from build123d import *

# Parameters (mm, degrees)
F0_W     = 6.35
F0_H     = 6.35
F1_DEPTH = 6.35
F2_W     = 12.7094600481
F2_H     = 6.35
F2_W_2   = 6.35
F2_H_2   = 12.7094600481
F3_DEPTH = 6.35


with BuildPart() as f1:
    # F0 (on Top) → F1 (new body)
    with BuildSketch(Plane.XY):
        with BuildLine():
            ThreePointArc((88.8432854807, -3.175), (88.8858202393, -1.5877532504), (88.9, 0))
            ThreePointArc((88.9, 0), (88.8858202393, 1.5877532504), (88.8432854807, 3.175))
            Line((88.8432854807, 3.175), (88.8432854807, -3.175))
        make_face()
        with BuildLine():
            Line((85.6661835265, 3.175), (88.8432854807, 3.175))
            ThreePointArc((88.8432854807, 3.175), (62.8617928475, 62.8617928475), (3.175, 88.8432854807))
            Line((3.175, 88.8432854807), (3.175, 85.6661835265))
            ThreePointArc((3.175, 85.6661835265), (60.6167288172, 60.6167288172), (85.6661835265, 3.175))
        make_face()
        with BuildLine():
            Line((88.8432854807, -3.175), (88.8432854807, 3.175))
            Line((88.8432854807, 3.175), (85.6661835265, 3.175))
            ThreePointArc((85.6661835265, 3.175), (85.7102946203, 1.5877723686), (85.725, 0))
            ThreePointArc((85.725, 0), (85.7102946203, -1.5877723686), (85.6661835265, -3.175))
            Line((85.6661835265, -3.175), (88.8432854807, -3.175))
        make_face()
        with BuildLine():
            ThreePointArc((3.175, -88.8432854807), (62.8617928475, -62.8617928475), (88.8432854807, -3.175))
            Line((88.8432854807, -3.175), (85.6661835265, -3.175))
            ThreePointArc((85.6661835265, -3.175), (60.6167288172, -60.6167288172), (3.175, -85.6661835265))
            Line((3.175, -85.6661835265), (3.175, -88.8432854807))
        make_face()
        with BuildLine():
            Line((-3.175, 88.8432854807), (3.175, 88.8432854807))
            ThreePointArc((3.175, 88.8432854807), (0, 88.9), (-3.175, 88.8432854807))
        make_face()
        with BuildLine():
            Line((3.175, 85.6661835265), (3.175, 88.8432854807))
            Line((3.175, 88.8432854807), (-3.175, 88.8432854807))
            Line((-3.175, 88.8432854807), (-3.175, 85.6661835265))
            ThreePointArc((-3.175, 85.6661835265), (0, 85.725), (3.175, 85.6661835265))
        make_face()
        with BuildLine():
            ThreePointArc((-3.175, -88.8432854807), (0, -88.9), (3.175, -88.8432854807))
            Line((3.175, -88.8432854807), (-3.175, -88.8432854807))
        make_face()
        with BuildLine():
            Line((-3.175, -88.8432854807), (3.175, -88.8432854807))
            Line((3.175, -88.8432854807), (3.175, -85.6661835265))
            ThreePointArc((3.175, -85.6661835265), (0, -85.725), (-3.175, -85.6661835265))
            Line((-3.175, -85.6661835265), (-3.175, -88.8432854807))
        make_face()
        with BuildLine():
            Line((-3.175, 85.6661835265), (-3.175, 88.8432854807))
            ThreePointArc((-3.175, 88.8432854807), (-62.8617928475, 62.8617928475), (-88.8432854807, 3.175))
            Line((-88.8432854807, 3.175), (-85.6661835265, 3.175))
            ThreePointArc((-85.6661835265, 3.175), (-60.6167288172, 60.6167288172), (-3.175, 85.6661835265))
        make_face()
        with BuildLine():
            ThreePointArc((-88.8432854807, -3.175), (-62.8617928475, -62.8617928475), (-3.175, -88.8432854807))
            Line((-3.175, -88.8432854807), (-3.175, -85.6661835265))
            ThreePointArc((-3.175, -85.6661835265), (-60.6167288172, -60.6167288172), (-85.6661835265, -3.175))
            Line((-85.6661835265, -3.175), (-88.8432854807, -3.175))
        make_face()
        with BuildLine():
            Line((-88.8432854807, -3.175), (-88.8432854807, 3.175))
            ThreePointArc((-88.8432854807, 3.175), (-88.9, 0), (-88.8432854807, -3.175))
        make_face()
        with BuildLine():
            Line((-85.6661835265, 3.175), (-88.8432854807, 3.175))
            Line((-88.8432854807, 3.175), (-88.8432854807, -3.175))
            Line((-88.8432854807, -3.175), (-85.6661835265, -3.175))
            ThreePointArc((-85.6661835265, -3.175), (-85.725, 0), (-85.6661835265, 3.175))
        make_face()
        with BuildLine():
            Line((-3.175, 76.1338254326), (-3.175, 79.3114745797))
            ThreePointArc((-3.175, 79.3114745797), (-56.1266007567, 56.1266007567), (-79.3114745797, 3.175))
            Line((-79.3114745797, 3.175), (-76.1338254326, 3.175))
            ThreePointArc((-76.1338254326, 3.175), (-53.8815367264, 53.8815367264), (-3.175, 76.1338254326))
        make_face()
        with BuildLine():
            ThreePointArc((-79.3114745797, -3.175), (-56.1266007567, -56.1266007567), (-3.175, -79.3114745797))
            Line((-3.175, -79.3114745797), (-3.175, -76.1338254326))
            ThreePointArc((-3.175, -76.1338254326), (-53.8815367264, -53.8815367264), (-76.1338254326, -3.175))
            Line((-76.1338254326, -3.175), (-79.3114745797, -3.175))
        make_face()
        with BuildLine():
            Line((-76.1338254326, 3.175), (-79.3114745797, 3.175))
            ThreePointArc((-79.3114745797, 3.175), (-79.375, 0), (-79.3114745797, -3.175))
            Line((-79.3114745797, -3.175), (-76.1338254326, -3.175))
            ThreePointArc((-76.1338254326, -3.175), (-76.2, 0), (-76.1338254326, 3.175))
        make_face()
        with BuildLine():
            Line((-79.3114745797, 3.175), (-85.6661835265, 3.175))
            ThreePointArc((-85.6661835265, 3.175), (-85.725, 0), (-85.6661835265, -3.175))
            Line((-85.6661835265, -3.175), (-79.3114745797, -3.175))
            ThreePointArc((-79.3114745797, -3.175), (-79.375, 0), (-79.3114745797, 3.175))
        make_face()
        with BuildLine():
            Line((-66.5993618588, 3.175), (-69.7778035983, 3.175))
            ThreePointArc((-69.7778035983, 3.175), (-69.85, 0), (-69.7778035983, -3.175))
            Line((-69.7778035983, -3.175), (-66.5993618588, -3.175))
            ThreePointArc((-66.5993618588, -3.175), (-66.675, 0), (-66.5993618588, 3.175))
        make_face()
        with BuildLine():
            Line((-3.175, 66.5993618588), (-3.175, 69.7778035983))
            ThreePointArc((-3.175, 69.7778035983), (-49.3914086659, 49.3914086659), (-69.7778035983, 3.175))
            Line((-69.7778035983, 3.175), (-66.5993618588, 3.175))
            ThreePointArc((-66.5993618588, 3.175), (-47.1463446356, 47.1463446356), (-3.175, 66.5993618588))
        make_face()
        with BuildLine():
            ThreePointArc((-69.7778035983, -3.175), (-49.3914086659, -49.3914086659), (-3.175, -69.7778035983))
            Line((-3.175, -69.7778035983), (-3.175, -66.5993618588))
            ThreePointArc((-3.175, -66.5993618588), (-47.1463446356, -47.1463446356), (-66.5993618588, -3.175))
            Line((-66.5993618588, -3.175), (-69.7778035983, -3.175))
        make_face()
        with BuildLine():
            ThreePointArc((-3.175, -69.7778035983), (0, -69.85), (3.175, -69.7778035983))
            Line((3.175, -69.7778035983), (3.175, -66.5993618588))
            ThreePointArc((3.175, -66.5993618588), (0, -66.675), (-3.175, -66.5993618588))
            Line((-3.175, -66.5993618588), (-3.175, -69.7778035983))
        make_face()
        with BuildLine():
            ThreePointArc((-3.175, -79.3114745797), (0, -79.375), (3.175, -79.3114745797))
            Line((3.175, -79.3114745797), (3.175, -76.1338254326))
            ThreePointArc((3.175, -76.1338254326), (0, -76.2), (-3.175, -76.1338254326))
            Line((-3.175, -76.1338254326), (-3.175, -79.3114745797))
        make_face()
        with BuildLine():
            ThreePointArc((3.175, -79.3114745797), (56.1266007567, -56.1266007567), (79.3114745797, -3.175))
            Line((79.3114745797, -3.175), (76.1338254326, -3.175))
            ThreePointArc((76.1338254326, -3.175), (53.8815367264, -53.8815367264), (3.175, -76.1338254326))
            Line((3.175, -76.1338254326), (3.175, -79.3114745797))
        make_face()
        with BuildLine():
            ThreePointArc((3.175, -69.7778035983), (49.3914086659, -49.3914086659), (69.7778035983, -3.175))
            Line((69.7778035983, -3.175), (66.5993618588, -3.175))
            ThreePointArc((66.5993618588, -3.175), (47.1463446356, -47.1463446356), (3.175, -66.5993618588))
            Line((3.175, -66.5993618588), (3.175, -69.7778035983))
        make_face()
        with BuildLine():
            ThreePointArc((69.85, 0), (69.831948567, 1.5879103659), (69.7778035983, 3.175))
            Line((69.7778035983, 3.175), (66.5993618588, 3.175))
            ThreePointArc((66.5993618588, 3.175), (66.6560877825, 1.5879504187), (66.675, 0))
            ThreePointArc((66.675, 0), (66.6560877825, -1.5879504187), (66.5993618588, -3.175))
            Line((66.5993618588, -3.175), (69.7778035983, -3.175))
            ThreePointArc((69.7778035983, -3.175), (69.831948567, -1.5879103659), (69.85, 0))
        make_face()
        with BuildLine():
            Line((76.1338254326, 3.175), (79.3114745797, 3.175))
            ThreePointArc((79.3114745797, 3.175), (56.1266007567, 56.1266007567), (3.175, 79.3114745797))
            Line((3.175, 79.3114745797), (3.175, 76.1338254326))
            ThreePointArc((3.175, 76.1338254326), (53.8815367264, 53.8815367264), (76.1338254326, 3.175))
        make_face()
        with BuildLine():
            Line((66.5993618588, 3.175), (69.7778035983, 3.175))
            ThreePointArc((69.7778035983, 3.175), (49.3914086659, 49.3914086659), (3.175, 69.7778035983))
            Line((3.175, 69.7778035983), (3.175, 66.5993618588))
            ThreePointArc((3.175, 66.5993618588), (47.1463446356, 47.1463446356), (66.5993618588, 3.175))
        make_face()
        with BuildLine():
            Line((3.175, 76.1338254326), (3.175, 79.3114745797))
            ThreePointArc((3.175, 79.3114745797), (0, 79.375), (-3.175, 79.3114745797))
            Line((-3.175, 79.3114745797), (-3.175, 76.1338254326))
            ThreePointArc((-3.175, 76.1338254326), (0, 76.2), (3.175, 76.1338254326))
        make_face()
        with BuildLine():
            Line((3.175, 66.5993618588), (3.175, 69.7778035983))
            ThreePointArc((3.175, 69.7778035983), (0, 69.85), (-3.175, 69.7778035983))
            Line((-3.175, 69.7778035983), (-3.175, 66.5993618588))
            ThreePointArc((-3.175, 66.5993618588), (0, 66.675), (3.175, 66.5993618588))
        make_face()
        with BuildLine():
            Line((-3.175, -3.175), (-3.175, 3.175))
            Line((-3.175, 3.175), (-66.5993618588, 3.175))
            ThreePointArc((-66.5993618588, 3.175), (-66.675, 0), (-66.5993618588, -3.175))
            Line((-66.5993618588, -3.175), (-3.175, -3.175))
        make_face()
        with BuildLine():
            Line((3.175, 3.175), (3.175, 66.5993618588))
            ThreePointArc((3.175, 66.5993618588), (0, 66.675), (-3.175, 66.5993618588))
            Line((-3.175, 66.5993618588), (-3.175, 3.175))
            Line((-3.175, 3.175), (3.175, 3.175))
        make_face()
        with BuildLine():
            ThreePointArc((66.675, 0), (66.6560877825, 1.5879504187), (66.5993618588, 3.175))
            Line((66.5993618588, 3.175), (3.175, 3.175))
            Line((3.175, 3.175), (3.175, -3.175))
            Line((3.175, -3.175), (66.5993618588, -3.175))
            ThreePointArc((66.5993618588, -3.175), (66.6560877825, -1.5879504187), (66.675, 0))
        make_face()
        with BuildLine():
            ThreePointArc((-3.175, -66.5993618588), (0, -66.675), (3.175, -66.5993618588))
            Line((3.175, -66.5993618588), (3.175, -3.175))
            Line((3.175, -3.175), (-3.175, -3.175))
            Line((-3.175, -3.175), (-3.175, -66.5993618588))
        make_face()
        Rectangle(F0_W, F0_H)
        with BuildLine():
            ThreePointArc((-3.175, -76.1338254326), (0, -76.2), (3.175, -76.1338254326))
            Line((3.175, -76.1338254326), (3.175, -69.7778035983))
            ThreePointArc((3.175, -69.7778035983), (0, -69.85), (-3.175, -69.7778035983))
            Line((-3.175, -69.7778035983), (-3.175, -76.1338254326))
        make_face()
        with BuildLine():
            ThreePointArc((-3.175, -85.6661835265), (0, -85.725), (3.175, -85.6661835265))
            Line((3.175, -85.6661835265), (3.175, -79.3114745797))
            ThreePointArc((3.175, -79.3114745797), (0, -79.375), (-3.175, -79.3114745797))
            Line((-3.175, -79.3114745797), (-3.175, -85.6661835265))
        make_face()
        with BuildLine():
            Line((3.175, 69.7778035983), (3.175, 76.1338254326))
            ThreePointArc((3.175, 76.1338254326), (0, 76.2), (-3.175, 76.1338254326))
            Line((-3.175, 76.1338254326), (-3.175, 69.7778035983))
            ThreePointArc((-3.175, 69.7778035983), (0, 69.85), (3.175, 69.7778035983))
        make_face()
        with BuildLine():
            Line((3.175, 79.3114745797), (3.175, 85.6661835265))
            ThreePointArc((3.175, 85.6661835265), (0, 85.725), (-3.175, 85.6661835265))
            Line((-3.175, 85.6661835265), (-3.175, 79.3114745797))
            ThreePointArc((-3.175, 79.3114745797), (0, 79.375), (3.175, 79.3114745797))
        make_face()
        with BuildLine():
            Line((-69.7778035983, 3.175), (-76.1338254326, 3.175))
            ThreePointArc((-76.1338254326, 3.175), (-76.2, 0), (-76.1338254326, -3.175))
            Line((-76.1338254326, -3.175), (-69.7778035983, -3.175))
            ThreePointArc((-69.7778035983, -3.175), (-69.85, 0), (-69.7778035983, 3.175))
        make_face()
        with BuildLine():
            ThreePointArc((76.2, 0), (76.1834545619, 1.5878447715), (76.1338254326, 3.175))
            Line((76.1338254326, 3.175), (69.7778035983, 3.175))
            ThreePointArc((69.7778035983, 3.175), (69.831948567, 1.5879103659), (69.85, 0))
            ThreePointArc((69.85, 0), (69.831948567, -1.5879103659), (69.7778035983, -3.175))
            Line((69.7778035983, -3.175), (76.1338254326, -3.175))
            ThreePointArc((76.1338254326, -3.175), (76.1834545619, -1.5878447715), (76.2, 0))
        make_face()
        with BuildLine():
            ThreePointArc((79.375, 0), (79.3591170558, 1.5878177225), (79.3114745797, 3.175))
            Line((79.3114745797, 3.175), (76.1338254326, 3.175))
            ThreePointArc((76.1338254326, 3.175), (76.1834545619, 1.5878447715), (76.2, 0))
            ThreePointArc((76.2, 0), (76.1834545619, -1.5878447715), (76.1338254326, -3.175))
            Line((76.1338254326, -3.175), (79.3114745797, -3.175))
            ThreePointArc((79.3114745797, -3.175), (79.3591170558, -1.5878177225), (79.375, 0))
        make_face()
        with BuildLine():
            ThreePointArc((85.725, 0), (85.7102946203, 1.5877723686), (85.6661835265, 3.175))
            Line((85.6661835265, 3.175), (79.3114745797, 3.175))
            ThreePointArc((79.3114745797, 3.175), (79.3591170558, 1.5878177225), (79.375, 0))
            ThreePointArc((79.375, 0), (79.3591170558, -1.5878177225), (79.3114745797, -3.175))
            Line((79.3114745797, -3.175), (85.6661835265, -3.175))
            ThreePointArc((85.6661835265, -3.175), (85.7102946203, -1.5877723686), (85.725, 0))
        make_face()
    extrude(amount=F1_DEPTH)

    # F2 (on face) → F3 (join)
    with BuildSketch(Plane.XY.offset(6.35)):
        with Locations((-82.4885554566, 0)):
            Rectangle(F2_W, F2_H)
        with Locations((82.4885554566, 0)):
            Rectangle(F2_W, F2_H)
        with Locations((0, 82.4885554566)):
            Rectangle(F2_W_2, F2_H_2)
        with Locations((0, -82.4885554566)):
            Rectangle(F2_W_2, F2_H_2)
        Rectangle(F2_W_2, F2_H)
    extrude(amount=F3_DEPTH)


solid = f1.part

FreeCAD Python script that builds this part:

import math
import FreeCAD as App
import Part
import Sketcher
Q = App.Units.Quantity

doc = App.newDocument("Part")
body = doc.addObject("PartDesign::Body", "Body")

sketch1 = body.newObject("Sketcher::SketchObject", "Sketch")
sketch1.AttachmentSupport = (doc.getObject("XY_Plane"), [""])
sketch1.MapMode = "FlatFace"
sketch1.addGeometry(Part.ArcOfCircle(Part.Circle(App.Vector(0, 0, 0), App.Vector(0, 0, 1), 88.9), math.radians(-2.05), math.radians(0)), False)
sketch1.addGeometry(Part.ArcOfCircle(Part.Circle(App.Vector(0, 0, 0), App.Vector(0, 0, 1), 88.9), math.radians(0), math.radians(2.05)), False)
sketch1.addGeometry(Part.ArcOfCircle(Part.Circle(App.Vector(0, 0, 0), App.Vector(0, 0, 1), 88.9), math.radians(2), math.radians(88)), False)
sketch1.addGeometry(Part.ArcOfCircle(Part.Circle(App.Vector(0, 0, 0), App.Vector(0, 0, 1), 88.9), math.radians(87.95), math.radians(92.05)), False)
sketch1.addGeometry(Part.ArcOfCircle(Part.Circle(App.Vector(0, 0, 0), App.Vector(0, 0, 1), 88.9), math.radians(92), math.radians(178)), False)
sketch1.addGeometry(Part.ArcOfCircle(Part.Circle(App.Vector(0, 0, 0), App.Vector(0, 0, 1), 88.9), math.radians(177.95), math.radians(182.05)), False)
sketch1.addGeometry(Part.ArcOfCircle(Part.Circle(App.Vector(0, 0, 0), App.Vector(0, 0, 1), 88.9), math.radians(-178), math.radians(-92)), False)
sketch1.addGeometry(Part.ArcOfCircle(Part.Circle(App.Vector(0, 0, 0), App.Vector(0, 0, 1), 88.9), math.radians(-92.05), math.radians(-87.95)), False)
sketch1.addGeometry(Part.ArcOfCircle(Part.Circle(App.Vector(0, 0, 0), App.Vector(0, 0, 1), 88.9), math.radians(-88), math.radians(-2)), False)
sketch1.addGeometry(Part.ArcOfCircle(Part.Circle(App.Vector(0, 0, 0), App.Vector(0, 0, 1), 85.7), math.radians(-178), math.radians(-92)), False)
sketch1.addGeometry(Part.LineSegment(App.Vector(-85.7, -3.2, 0), App.Vector(-79.3, -3.2, 0)), False)
sketch1.addGeometry(Part.ArcOfCircle(Part.Circle(App.Vector(0, 0, 0), App.Vector(0, 0, 1), 79.4), math.radians(-178), math.radians(-92)), False)
sketch1.addGeometry(Part.LineSegment(App.Vector(-3.2, -79.3, 0), App.Vector(-3.2, -85.7, 0)), False)
sketch1.addGeometry(Part.ArcOfCircle(Part.Circle(App.Vector(0, 0, 0), App.Vector(0, 0, 1), 69.8), math.radians(-177), math.radians(-93)), False)
sketch1.addGeometry(Part.LineSegment(App.Vector(-3.2, -69.8, 0), App.Vector(-3.2, -76.1, 0)), False)
sketch1.addGeometry(Part.ArcOfCircle(Part.Circle(App.Vector(0, 0, 0), App.Vector(0, 0, 1), 76.2), math.radians(-178), math.radians(-92)), False)
sketch1.addGeometry(Part.LineSegment(App.Vector(-76.1, -3.2, 0), App.Vector(-69.8, -3.2, 0)), False)
sketch1.addGeometry(Part.LineSegment(App.Vector(-66.6, -3.2, 0), App.Vector(-3.2, -3.2, 0)), False)
sketch1.addGeometry(Part.LineSegment(App.Vector(-3.2, -3.2, 0), App.Vector(-3.2, -66.6, 0)), False)
sketch1.addGeometry(Part.ArcOfCircle(Part.Circle(App.Vector(0, 0, 0), App.Vector(0, 0, 1), 66.7), math.radians(-177), math.radians(-93)), False)
sketch1.addGeometry(Part.LineSegment(App.Vector(69.8, -3.2, 0), App.Vector(76.1, -3.2, 0)), False)
sketch1.addGeometry(Part.ArcOfCircle(Part.Circle(App.Vector(0, 0, 0), App.Vector(0, 0, 1), 76.2), math.radians(-88), math.radians(-2)), False)
sketch1.addGeometry(Part.LineSegment(App.Vector(3.2, -76.1, 0), App.Vector(3.2, -69.8, 0)), False)
sketch1.addGeometry(Part.ArcOfCircle(Part.Circle(App.Vector(0, 0, 0), App.Vector(0, 0, 1), 69.8), math.radians(-87), math.radians(-3)), False)
sketch1.addGeometry(Part.LineSegment(App.Vector(3.2, -66.6, 0), App.Vector(3.2, -3.2, 0)), False)
sketch1.addGeometry(Part.LineSegment(App.Vector(3.2, -3.2, 0), App.Vector(66.6, -3.2, 0)), False)
sketch1.addGeometry(Part.ArcOfCircle(Part.Circle(App.Vector(0, 0, 0), App.Vector(0, 0, 1), 66.7), math.radians(-87), math.radians(-3)), False)
sketch1.addGeometry(Part.LineSegment(App.Vector(-3.2, 66.6, 0), App.Vector(-3.2, 3.2, 0)), False)
sketch1.addGeometry(Part.LineSegment(App.Vector(-3.2, 3.2, 0), App.Vector(-66.6, 3.2, 0)), False)
sketch1.addGeometry(Part.ArcOfCircle(Part.Circle(App.Vector(0, 0, 0), App.Vector(0, 0, 1), 66.7), math.radians(93), math.radians(177)), False)
sketch1.addGeometry(Part.ArcOfCircle(Part.Circle(App.Vector(0, 0, 0), App.Vector(0, 0, 1), 69.8), math.radians(93), math.radians(177)), False)
sketch1.addGeometry(Part.LineSegment(App.Vector(-69.8, 3.2, 0), App.Vector(-76.1, 3.2, 0)), False)
sketch1.addGeometry(Part.ArcOfCircle(Part.Circle(App.Vector(0, 0, 0), App.Vector(0, 0, 1), 76.2), math.radians(92), math.radians(178)), False)
sketch1.addGeometry(Part.LineSegment(App.Vector(-3.2, 76.1, 0), App.Vector(-3.2, 69.8, 0)), False)
sketch1.addGeometry(Part.ArcOfCircle(Part.Circle(App.Vector(0, 0, 0), App.Vector(0, 0, 1), 85.7), math.radians(92), math.radians(178)), False)
sketch1.addGeometry(Part.LineSegment(App.Vector(-3.2, 85.7, 0), App.Vector(-3.2, 79.3, 0)), False)
sketch1.addGeometry(Part.ArcOfCircle(Part.Circle(App.Vector(0, 0, 0), App.Vector(0, 0, 1), 79.4), math.radians(92), math.radians(178)), False)
sketch1.addGeometry(Part.LineSegment(App.Vector(-79.3, 3.2, 0), App.Vector(-85.7, 3.2, 0)), False)
sketch1.addGeometry(Part.ArcOfCircle(Part.Circle(App.Vector(0, 0, 0), App.Vector(0, 0, 1), 66.7), math.radians(3), math.radians(87)), False)
sketch1.addGeometry(Part.LineSegment(App.Vector(66.6, 3.2, 0), App.Vector(3.2, 3.2, 0)), False)
sketch1.addGeometry(Part.LineSegment(App.Vector(3.2, 3.2, 0), App.Vector(3.2, 66.6, 0)), False)
sketch1.addGeometry(Part.ArcOfCircle(Part.Circle(App.Vector(0, 0, 0), App.Vector(0, 0, 1), 76.2), math.radians(2), math.radians(88)), False)
sketch1.addGeometry(Part.LineSegment(App.Vector(76.1, 3.2, 0), App.Vector(69.8, 3.2, 0)), False)
sketch1.addGeometry(Part.ArcOfCircle(Part.Circle(App.Vector(0, 0, 0), App.Vector(0, 0, 1), 69.8), math.radians(3), math.radians(87)), False)
sketch1.addGeometry(Part.LineSegment(App.Vector(3.2, 69.8, 0), App.Vector(3.2, 76.1, 0)), False)
sketch1.addGeometry(Part.ArcOfCircle(Part.Circle(App.Vector(0, 0, 0), App.Vector(0, 0, 1), 79.4), math.radians(-88), math.radians(-2)), False)
sketch1.addGeometry(Part.LineSegment(App.Vector(79.3, -3.2, 0), App.Vector(85.7, -3.2, 0)), False)
sketch1.addGeometry(Part.ArcOfCircle(Part.Circle(App.Vector(0, 0, 0), App.Vector(0, 0, 1), 85.7), math.radians(-88), math.radians(-2)), False)
sketch1.addGeometry(Part.LineSegment(App.Vector(3.2, -85.7, 0), App.Vector(3.2, -79.3, 0)), False)
sketch1.addGeometry(Part.ArcOfCircle(Part.Circle(App.Vector(0, 0, 0), App.Vector(0, 0, 1), 79.4), math.radians(2), math.radians(88)), False)
sketch1.addGeometry(Part.LineSegment(App.Vector(3.2, 79.3, 0), App.Vector(3.2, 85.7, 0)), False)
sketch1.addGeometry(Part.ArcOfCircle(Part.Circle(App.Vector(0, 0, 0), App.Vector(0, 0, 1), 85.7), math.radians(2), math.radians(88)), False)
sketch1.addGeometry(Part.LineSegment(App.Vector(85.7, 3.2, 0), App.Vector(79.3, 3.2, 0)), False)
sketch1.addConstraint(Sketcher.Constraint("Tangent", 0, 2, 1, 1))
sketch1.addConstraint(Sketcher.Constraint("Tangent", 1, 2, 2, 1))
sketch1.addConstraint(Sketcher.Constraint("Tangent", 2, 2, 3, 1))
sketch1.addConstraint(Sketcher.Constraint("Tangent", 3, 2, 4, 1))
sketch1.addConstraint(Sketcher.Constraint("Tangent", 4, 2, 5, 1))
sketch1.addConstraint(Sketcher.Constraint("Tangent", 5, 2, 6, 1))
sketch1.addConstraint(Sketcher.Constraint("Tangent", 6, 2, 7, 1))
sketch1.addConstraint(Sketcher.Constraint("Tangent", 7, 2, 8, 1))
sketch1.addConstraint(Sketcher.Constraint("Tangent", 8, 2, 0, 1))
sketch1.addConstraint(Sketcher.Constraint("Coincident", 9, 1, 10, 1))
sketch1.addConstraint(Sketcher.Constraint("Coincident", 10, 2, 11, 1))
sketch1.addConstraint(Sketcher.Constraint("Coincident", 11, 2, 12, 1))
sketch1.addConstraint(Sketcher.Constraint("Coincident", 12, 2, 9, 2))
sketch1.addConstraint(Sketcher.Constraint("Coincident", 13, 2, 14, 1))
sketch1.addConstraint(Sketcher.Constraint("Coincident", 14, 2, 15, 2))
sketch1.addConstraint(Sketcher.Constraint("Coincident", 15, 1, 16, 1))
sketch1.addConstraint(Sketcher.Constraint("Coincident", 16, 2, 13, 1))
sketch1.addConstraint(Sketcher.Constraint("Coincident", 17, 2, 18, 1))
sketch1.addConstraint(Sketcher.Constraint("Coincident", 18, 2, 19, 2))
sketch1.addConstraint(Sketcher.Constraint("Coincident", 19, 1, 17, 1))
sketch1.addConstraint(Sketcher.Constraint("Coincident", 20, 2, 21, 2))
sketch1.addConstraint(Sketcher.Constraint("Coincident", 21, 1, 22, 1))
sketch1.addConstraint(Sketcher.Constraint("Coincident", 22, 2, 23, 1))
sketch1.addConstraint(Sketcher.Constraint("Coincident", 23, 2, 20, 1))
sketch1.addConstraint(Sketcher.Constraint("Coincident", 24, 2, 25, 1))
sketch1.addConstraint(Sketcher.Constraint("Coincident", 25, 2, 26, 2))
sketch1.addConstraint(Sketcher.Constraint("Coincident", 26, 1, 24, 1))
sketch1.addConstraint(Sketcher.Constraint("Coincident", 27, 2, 28, 1))
sketch1.addConstraint(Sketcher.Constraint("Coincident", 28, 2, 29, 2))
sketch1.addConstraint(Sketcher.Constraint("Coincident", 29, 1, 27, 1))
sketch1.addConstraint(Sketcher.Constraint("Coincident", 30, 2, 31, 1))
sketch1.addConstraint(Sketcher.Constraint("Coincident", 31, 2, 32, 2))
sketch1.addConstraint(Sketcher.Constraint("Coincident", 32, 1, 33, 1))
sketch1.addConstraint(Sketcher.Constraint("Coincident", 33, 2, 30, 1))
sketch1.addConstraint(Sketcher.Constraint("Coincident", 34, 1, 35, 1))
sketch1.addConstraint(Sketcher.Constraint("Coincident", 35, 2, 36, 1))
sketch1.addConstraint(Sketcher.Constraint("Coincident", 36, 2, 37, 1))
sketch1.addConstraint(Sketcher.Constraint("Coincident", 37, 2, 34, 2))
sketch1.addConstraint(Sketcher.Constraint("Coincident", 38, 1, 39, 1))
sketch1.addConstraint(Sketcher.Constraint("Coincident", 39, 2, 40, 1))
sketch1.addConstraint(Sketcher.Constraint("Coincident", 40, 2, 38, 2))
sketch1.addConstraint(Sketcher.Constraint("Coincident", 41, 1, 42, 1))
sketch1.addConstraint(Sketcher.Constraint("Coincident", 42, 2, 43, 1))
sketch1.addConstraint(Sketcher.Constraint("Coincident", 43, 2, 44, 1))
sketch1.addConstraint(Sketcher.Constraint("Coincident", 44, 2, 41, 2))
sketch1.addConstraint(Sketcher.Constraint("Coincident", 45, 2, 46, 1))
sketch1.addConstraint(Sketcher.Constraint("Coincident", 46, 2, 47, 2))
sketch1.addConstraint(Sketcher.Constraint("Coincident", 47, 1, 48, 1))
sketch1.addConstraint(Sketcher.Constraint("Coincident", 48, 2, 45, 1))
sketch1.addConstraint(Sketcher.Constraint("Coincident", 49, 2, 50, 1))
sketch1.addConstraint(Sketcher.Constraint("Coincident", 50, 2, 51, 2))
sketch1.addConstraint(Sketcher.Constraint("Coincident", 51, 1, 52, 1))
sketch1.addConstraint(Sketcher.Constraint("Coincident", 52, 2, 49, 1))
sketch1.addConstraint(Sketcher.Constraint("Horizontal", 10))
sketch1.addConstraint(Sketcher.Constraint("Vertical", 12))
sketch1.addConstraint(Sketcher.Constraint("Vertical", 14))
sketch1.addConstraint(Sketcher.Constraint("Horizontal", 16))
sketch1.addConstraint(Sketcher.Constraint("Horizontal", 17))
sketch1.addConstraint(Sketcher.Constraint("Vertical", 18))
sketch1.addConstraint(Sketcher.Constraint("Horizontal", 20))
sketch1.addConstraint(Sketcher.Constraint("Vertical", 22))
sketch1.addConstraint(Sketcher.Constraint("Vertical", 24))
sketch1.addConstraint(Sketcher.Constraint("Horizontal", 25))
sketch1.addConstraint(Sketcher.Constraint("Vertical", 27))
sketch1.addConstraint(Sketcher.Constraint("Horizontal", 28))
sketch1.addConstraint(Sketcher.Constraint("Horizontal", 31))
sketch1.addConstraint(Sketcher.Constraint("Vertical", 33))
sketch1.addConstraint(Sketcher.Constraint("Vertical", 35))
sketch1.addConstraint(Sketcher.Constraint("Horizontal", 37))
sketch1.addConstraint(Sketcher.Constraint("Horizontal", 39))
sketch1.addConstraint(Sketcher.Constraint("Vertical", 40))
sketch1.addConstraint(Sketcher.Constraint("Horizontal", 42))
sketch1.addConstraint(Sketcher.Constraint("Vertical", 44))
sketch1.addConstraint(Sketcher.Constraint("Horizontal", 46))
sketch1.addConstraint(Sketcher.Constraint("Vertical", 48))
sketch1.addConstraint(Sketcher.Constraint("Vertical", 50))
sketch1.addConstraint(Sketcher.Constraint("Horizontal", 52))
sketch1.addConstraint(Sketcher.Constraint("Coincident", 0, 3, -1, 1))
sketch1.addConstraint(Sketcher.Constraint("Coincident", 2, 3, -1, 1))
sketch1.addConstraint(Sketcher.Constraint("Coincident", 4, 3, -1, 1))
sketch1.addConstraint(Sketcher.Constraint("Coincident", 6, 3, -1, 1))
sketch1.addConstraint(Sketcher.Constraint("Coincident", 9, 3, -1, 1))
sketch1.addConstraint(Sketcher.Constraint("Coincident", 11, 3, -1, 1))
sketch1.addConstraint(Sketcher.Constraint("Coincident", 13, 3, -1, 1))
sketch1.addConstraint(Sketcher.Constraint("Coincident", 15, 3, -1, 1))
sketch1.addConstraint(Sketcher.Constraint("Coincident", 19, 3, -1, 1))
sketch1.addConstraint(Sketcher.Constraint("Coincident", 21, 3, -1, 1))
sketch1.addConstraint(Sketcher.Constraint("Coincident", 23, 3, -1, 1))
sketch1.addConstraint(Sketcher.Constraint("Coincident", 26, 3, -1, 1))
sketch1.addConstraint(Sketcher.Constraint("Coincident", 29, 3, -1, 1))
sketch1.addConstraint(Sketcher.Constraint("Coincident", 30, 3, -1, 1))
sketch1.addConstraint(Sketcher.Constraint("Coincident", 32, 3, -1, 1))
sketch1.addConstraint(Sketcher.Constraint("Coincident", 34, 3, -1, 1))
sketch1.addConstraint(Sketcher.Constraint("Coincident", 36, 3, -1, 1))
sketch1.addConstraint(Sketcher.Constraint("Coincident", 38, 3, -1, 1))
sketch1.addConstraint(Sketcher.Constraint("Coincident", 41, 3, -1, 1))
sketch1.addConstraint(Sketcher.Constraint("Coincident", 43, 3, -1, 1))
sketch1.addConstraint(Sketcher.Constraint("Coincident", 45, 3, -1, 1))
sketch1.addConstraint(Sketcher.Constraint("Coincident", 47, 3, -1, 1))
sketch1.addConstraint(Sketcher.Constraint("Coincident", 49, 3, -1, 1))
sketch1.addConstraint(Sketcher.Constraint("Coincident", 51, 3, -1, 1))
sketch1.addConstraint(Sketcher.Constraint("Equal", 15, 21))
sketch1.addConstraint(Sketcher.Constraint("Equal", 13, 23))
sketch1.addConstraint(Sketcher.Constraint("Equal", 19, 26))
sketch1.addConstraint(Sketcher.Constraint("Equal", 26, 29))
sketch1.addConstraint(Sketcher.Constraint("Equal", 23, 30))
sketch1.addConstraint(Sketcher.Constraint("Equal", 21, 32))
sketch1.addConstraint(Sketcher.Constraint("Equal", 9, 34))
sketch1.addConstraint(Sketcher.Constraint("Equal", 11, 36))
sketch1.addConstraint(Sketcher.Constraint("Equal", 29, 38))
sketch1.addConstraint(Sketcher.Constraint("Equal", 32, 41))
sketch1.addConstraint(Sketcher.Constraint("Equal", 30, 43))
sketch1.addConstraint(Sketcher.Constraint("Equal", 36, 45))
sketch1.addConstraint(Sketcher.Constraint("Equal", 34, 47))
sketch1.addConstraint(Sketcher.Constraint("Equal", 45, 49))
sketch1.addConstraint(Sketcher.Constraint("Equal", 47, 51))
sketch1.addConstraint(Sketcher.Constraint("Symmetric", 24, 2, 27, 2, -1, 1))
sketch1.addConstraint(Sketcher.Constraint("Symmetric", 17, 2, 39, 2, -1, 1))
sketch1.addConstraint(Sketcher.Constraint("Symmetric", 17, 2, 24, 2, -2))
sketch1.addConstraint(Sketcher.Constraint("PointOnObject", 0, 2, -1))
sketch1.addConstraint(Sketcher.Constraint("Horizontal", 2, 2, 3, 2))
sketch1.addConstraint(Sketcher.Constraint("Horizontal", 1, 2, 4, 2))
sketch1.addConstraint(Sketcher.Constraint("Horizontal", 6, 2, 7, 2))
sketch1.addConstraint(Sketcher.Constraint("Horizontal", 5, 2, 8, 2))
sketch1.addConstraint(Sketcher.Constraint("Horizontal", 8, 2, 9, 1))
sketch1.addConstraint(Sketcher.Constraint("Horizontal", 10, 2, 15, 1))
sketch1.addConstraint(Sketcher.Constraint("Horizontal", 16, 2, 17, 2))
sketch1.addConstraint(Sketcher.Constraint("Horizontal", 19, 1, 20, 2))
sketch1.addConstraint(Sketcher.Constraint("Horizontal", 14, 2, 21, 1))
sketch1.addConstraint(Sketcher.Constraint("Horizontal", 4, 2, 27, 2))
sketch1.addConstraint(Sketcher.Constraint("Horizontal", 28, 2, 30, 2))
sketch1.addConstraint(Sketcher.Constraint("Horizontal", 31, 2, 36, 2))
sketch1.addConstraint(Sketcher.Constraint("Horizontal", 39, 2, 41, 1))
sketch1.addConstraint(Sketcher.Constraint("Horizontal", 33, 2, 43, 2))
sketch1.addConstraint(Sketcher.Constraint("Horizontal", 25, 2, 45, 2))
sketch1.addConstraint(Sketcher.Constraint("Horizontal", 12, 2, 47, 1))
sketch1.addConstraint(Sketcher.Constraint("Horizontal", 35, 2, 49, 2))
sketch1.addConstraint(Sketcher.Constraint("Horizontal", 42, 2, 51, 1))
sketch1.addConstraint(Sketcher.Constraint("Vertical", 3, 2, 6, 2))
sketch1.addConstraint(Sketcher.Constraint("Vertical", 6, 2, 11, 2))
sketch1.addConstraint(Sketcher.Constraint("Vertical", 12, 2, 13, 2))
sketch1.addConstraint(Sketcher.Constraint("Vertical", 14, 2, 17, 2))
sketch1.addConstraint(Sketcher.Constraint("Vertical", 29, 1, 32, 1))
sketch1.addConstraint(Sketcher.Constraint("Vertical", 33, 2, 34, 1))
sketch1.addConstraint(Sketcher.Constraint("Equal", 39, 18))
sketch1.addConstraint(Sketcher.Constraint("Radius", 15, Q("3 in")))
sketch1.addConstraint(Sketcher.Constraint("Radius", 0, Q("3.5 in")))
sketch1.addConstraint(Sketcher.Constraint("Radius", 13, Q("2.75 in")))
sketch1.addConstraint(Sketcher.Constraint("Radius", 9, Q("3.375 in")))
sketch1.addConstraint(Sketcher.Constraint("Radius", 11, Q("3.125 in")))
sketch1.addConstraint(Sketcher.Constraint("Radius", 19, Q("2.625 in")))
sketch1.addConstraint(Sketcher.Constraint("DistanceY", 10, 2, -1, 1, Q("0.125 in")))
pad1 = body.newObject("PartDesign::Pad", "Pad")
pad1.Profile = sketch1
pad1.Length = Q("0.25 in")

sketch2 = body.newObject("Sketcher::SketchObject", "Sketch001")
sketch2.AttachmentSupport = (doc.getObject("XY_Plane"), [""])
sketch2.MapMode = "FlatFace"
sketch2.AttachmentOffset = App.Placement(App.Vector(0, 0, 0.25 * 25.4), App.Rotation())
sketch2.addGeometry(Part.LineSegment(App.Vector(-89, 3, 0), App.Vector(-89, -3, 0)), False)
sketch2.addGeometry(Part.LineSegment(App.Vector(-89, -3, 0), App.Vector(-76, -3, 0)), False)
sketch2.addGeometry(Part.LineSegment(App.Vector(-76, -3, 0), App.Vector(-76, 3, 0)), False)
sketch2.addGeometry(Part.LineSegment(App.Vector(-76, 3, 0), App.Vector(-89, 3, 0)), False)
sketch2.addGeometry(Part.LineSegment(App.Vector(76, 3, 0), App.Vector(76, -3, 0)), False)
sketch2.addGeometry(Part.LineSegment(App.Vector(76, -3, 0), App.Vector(89, -3, 0)), False)
sketch2.addGeometry(Part.LineSegment(App.Vector(89, -3, 0), App.Vector(89, 3, 0)), False)
sketch2.addGeometry(Part.LineSegment(App.Vector(89, 3, 0), App.Vector(76, 3, 0)), False)
sketch2.addGeometry(Part.LineSegment(App.Vector(-3, 89, 0), App.Vector(-3, 76, 0)), False)
sketch2.addGeometry(Part.LineSegment(App.Vector(-3, 76, 0), App.Vector(3, 76, 0)), False)
sketch2.addGeometry(Part.LineSegment(App.Vector(3, 76, 0), App.Vector(3, 89, 0)), False)
sketch2.addGeometry(Part.LineSegment(App.Vector(3, 89, 0), App.Vector(-3, 89, 0)), False)
sketch2.addGeometry(Part.LineSegment(App.Vector(-3, -76, 0), App.Vector(-3, -89, 0)), False)
sketch2.addGeometry(Part.LineSegment(App.Vector(-3, -89, 0), App.Vector(3, -89, 0)), False)
sketch2.addGeometry(Part.LineSegment(App.Vector(3, -89, 0), App.Vector(3, -76, 0)), False)
sketch2.addGeometry(Part.LineSegment(App.Vector(3, -76, 0), App.Vector(-3, -76, 0)), False)
sketch2.addGeometry(Part.LineSegment(App.Vector(-3, 3, 0), App.Vector(-3, -3, 0)), False)
sketch2.addGeometry(Part.LineSegment(App.Vector(-3, -3, 0), App.Vector(3, -3, 0)), False)
sketch2.addGeometry(Part.LineSegment(App.Vector(3, -3, 0), App.Vector(3, 3, 0)), False)
sketch2.addGeometry(Part.LineSegment(App.Vector(3, 3, 0), App.Vector(-3, 3, 0)), False)
sketch2.addConstraint(Sketcher.Constraint("Coincident", 0, 2, 1, 1))
sketch2.addConstraint(Sketcher.Constraint("Coincident", 1, 2, 2, 1))
sketch2.addConstraint(Sketcher.Constraint("Coincident", 2, 2, 3, 1))
sketch2.addConstraint(Sketcher.Constraint("Coincident", 3, 2, 0, 1))
sketch2.addConstraint(Sketcher.Constraint("Coincident", 4, 2, 5, 1))
sketch2.addConstraint(Sketcher.Constraint("Coincident", 5, 2, 6, 1))
sketch2.addConstraint(Sketcher.Constraint("Coincident", 6, 2, 7, 1))
sketch2.addConstraint(Sketcher.Constraint("Coincident", 7, 2, 4, 1))
sketch2.addConstraint(Sketcher.Constraint("Coincident", 8, 2, 9, 1))
sketch2.addConstraint(Sketcher.Constraint("Coincident", 9, 2, 10, 1))
sketch2.addConstraint(Sketcher.Constraint("Coincident", 10, 2, 11, 1))
sketch2.addConstraint(Sketcher.Constraint("Coincident", 11, 2, 8, 1))
sketch2.addConstraint(Sketcher.Constraint("Coincident", 12, 2, 13, 1))
sketch2.addConstraint(Sketcher.Constraint("Coincident", 13, 2, 14, 1))
sketch2.addConstraint(Sketcher.Constraint("Coincident", 14, 2, 15, 1))
sketch2.addConstraint(Sketcher.Constraint("Coincident", 15, 2, 12, 1))
sketch2.addConstraint(Sketcher.Constraint("Coincident", 16, 2, 17, 1))
sketch2.addConstraint(Sketcher.Constraint("Coincident", 17, 2, 18, 1))
sketch2.addConstraint(Sketcher.Constraint("Coincident", 18, 2, 19, 1))
sketch2.addConstraint(Sketcher.Constraint("Coincident", 19, 2, 16, 1))
sketch2.addConstraint(Sketcher.Constraint("Vertical", 0))
sketch2.addConstraint(Sketcher.Constraint("Horizontal", 1))
sketch2.addConstraint(Sketcher.Constraint("Vertical", 2))
sketch2.addConstraint(Sketcher.Constraint("Horizontal", 3))
sketch2.addConstraint(Sketcher.Constraint("Vertical", 4))
sketch2.addConstraint(Sketcher.Constraint("Horizontal", 5))
sketch2.addConstraint(Sketcher.Constraint("Vertical", 6))
sketch2.addConstraint(Sketcher.Constraint("Horizontal", 7))
sketch2.addConstraint(Sketcher.Constraint("Vertical", 8))
sketch2.addConstraint(Sketcher.Constraint("Horizontal", 9))
sketch2.addConstraint(Sketcher.Constraint("Vertical", 10))
sketch2.addConstraint(Sketcher.Constraint("Horizontal", 11))
sketch2.addConstraint(Sketcher.Constraint("Vertical", 12))
sketch2.addConstraint(Sketcher.Constraint("Horizontal", 13))
sketch2.addConstraint(Sketcher.Constraint("Vertical", 14))
sketch2.addConstraint(Sketcher.Constraint("Horizontal", 15))
sketch2.addConstraint(Sketcher.Constraint("Vertical", 16))
sketch2.addConstraint(Sketcher.Constraint("Horizontal", 17))
sketch2.addConstraint(Sketcher.Constraint("Vertical", 18))
sketch2.addConstraint(Sketcher.Constraint("Horizontal", 19))
sketch2.addConstraint(Sketcher.Constraint("Symmetric", 2, 2, 4, 2, -1, 1))
sketch2.addConstraint(Sketcher.Constraint("Symmetric", 0, 2, 6, 2, -1, 1))
sketch2.addConstraint(Sketcher.Constraint("Symmetric", 10, 2, 12, 2, -1, 1))
sketch2.addConstraint(Sketcher.Constraint("Symmetric", 8, 2, 14, 2, -1, 1))
sketch2.addConstraint(Sketcher.Constraint("Symmetric", 16, 2, 18, 2, -1, 1))
sketch2.addConstraint(Sketcher.Constraint("Horizontal", 1, 2, 4, 2))
sketch2.addConstraint(Sketcher.Constraint("Horizontal", 5, 2, 16, 2))
sketch2.addConstraint(Sketcher.Constraint("Vertical", 11, 2, 12, 2))
sketch2.addConstraint(Sketcher.Constraint("Vertical", 15, 2, 16, 2))
sketch2.addConstraint(Sketcher.Constraint("Equal", 19, 0))
sketch2.addConstraint(Sketcher.Constraint("Equal", 7, 8))
sketch2.addConstraint(Sketcher.Constraint("DistanceX", 9, 1, 9, 2, Q("0.25 in")))
sketch2.addConstraint(Sketcher.Constraint("DistanceX", 1, 1, 1, 2, 12.70946))
sketch2.addConstraint(Sketcher.Constraint("DistanceX", 1, 2, 4, 2, 152.267651))
sketch2.addConstraint(Sketcher.Constraint("DistanceY", -1, 1, 8, 2, 76.133825))
pad2 = body.newObject("PartDesign::Pad", "Pad001")
pad2.Profile = sketch2
pad2.Length = Q("0.25 in")

doc.recompute()
